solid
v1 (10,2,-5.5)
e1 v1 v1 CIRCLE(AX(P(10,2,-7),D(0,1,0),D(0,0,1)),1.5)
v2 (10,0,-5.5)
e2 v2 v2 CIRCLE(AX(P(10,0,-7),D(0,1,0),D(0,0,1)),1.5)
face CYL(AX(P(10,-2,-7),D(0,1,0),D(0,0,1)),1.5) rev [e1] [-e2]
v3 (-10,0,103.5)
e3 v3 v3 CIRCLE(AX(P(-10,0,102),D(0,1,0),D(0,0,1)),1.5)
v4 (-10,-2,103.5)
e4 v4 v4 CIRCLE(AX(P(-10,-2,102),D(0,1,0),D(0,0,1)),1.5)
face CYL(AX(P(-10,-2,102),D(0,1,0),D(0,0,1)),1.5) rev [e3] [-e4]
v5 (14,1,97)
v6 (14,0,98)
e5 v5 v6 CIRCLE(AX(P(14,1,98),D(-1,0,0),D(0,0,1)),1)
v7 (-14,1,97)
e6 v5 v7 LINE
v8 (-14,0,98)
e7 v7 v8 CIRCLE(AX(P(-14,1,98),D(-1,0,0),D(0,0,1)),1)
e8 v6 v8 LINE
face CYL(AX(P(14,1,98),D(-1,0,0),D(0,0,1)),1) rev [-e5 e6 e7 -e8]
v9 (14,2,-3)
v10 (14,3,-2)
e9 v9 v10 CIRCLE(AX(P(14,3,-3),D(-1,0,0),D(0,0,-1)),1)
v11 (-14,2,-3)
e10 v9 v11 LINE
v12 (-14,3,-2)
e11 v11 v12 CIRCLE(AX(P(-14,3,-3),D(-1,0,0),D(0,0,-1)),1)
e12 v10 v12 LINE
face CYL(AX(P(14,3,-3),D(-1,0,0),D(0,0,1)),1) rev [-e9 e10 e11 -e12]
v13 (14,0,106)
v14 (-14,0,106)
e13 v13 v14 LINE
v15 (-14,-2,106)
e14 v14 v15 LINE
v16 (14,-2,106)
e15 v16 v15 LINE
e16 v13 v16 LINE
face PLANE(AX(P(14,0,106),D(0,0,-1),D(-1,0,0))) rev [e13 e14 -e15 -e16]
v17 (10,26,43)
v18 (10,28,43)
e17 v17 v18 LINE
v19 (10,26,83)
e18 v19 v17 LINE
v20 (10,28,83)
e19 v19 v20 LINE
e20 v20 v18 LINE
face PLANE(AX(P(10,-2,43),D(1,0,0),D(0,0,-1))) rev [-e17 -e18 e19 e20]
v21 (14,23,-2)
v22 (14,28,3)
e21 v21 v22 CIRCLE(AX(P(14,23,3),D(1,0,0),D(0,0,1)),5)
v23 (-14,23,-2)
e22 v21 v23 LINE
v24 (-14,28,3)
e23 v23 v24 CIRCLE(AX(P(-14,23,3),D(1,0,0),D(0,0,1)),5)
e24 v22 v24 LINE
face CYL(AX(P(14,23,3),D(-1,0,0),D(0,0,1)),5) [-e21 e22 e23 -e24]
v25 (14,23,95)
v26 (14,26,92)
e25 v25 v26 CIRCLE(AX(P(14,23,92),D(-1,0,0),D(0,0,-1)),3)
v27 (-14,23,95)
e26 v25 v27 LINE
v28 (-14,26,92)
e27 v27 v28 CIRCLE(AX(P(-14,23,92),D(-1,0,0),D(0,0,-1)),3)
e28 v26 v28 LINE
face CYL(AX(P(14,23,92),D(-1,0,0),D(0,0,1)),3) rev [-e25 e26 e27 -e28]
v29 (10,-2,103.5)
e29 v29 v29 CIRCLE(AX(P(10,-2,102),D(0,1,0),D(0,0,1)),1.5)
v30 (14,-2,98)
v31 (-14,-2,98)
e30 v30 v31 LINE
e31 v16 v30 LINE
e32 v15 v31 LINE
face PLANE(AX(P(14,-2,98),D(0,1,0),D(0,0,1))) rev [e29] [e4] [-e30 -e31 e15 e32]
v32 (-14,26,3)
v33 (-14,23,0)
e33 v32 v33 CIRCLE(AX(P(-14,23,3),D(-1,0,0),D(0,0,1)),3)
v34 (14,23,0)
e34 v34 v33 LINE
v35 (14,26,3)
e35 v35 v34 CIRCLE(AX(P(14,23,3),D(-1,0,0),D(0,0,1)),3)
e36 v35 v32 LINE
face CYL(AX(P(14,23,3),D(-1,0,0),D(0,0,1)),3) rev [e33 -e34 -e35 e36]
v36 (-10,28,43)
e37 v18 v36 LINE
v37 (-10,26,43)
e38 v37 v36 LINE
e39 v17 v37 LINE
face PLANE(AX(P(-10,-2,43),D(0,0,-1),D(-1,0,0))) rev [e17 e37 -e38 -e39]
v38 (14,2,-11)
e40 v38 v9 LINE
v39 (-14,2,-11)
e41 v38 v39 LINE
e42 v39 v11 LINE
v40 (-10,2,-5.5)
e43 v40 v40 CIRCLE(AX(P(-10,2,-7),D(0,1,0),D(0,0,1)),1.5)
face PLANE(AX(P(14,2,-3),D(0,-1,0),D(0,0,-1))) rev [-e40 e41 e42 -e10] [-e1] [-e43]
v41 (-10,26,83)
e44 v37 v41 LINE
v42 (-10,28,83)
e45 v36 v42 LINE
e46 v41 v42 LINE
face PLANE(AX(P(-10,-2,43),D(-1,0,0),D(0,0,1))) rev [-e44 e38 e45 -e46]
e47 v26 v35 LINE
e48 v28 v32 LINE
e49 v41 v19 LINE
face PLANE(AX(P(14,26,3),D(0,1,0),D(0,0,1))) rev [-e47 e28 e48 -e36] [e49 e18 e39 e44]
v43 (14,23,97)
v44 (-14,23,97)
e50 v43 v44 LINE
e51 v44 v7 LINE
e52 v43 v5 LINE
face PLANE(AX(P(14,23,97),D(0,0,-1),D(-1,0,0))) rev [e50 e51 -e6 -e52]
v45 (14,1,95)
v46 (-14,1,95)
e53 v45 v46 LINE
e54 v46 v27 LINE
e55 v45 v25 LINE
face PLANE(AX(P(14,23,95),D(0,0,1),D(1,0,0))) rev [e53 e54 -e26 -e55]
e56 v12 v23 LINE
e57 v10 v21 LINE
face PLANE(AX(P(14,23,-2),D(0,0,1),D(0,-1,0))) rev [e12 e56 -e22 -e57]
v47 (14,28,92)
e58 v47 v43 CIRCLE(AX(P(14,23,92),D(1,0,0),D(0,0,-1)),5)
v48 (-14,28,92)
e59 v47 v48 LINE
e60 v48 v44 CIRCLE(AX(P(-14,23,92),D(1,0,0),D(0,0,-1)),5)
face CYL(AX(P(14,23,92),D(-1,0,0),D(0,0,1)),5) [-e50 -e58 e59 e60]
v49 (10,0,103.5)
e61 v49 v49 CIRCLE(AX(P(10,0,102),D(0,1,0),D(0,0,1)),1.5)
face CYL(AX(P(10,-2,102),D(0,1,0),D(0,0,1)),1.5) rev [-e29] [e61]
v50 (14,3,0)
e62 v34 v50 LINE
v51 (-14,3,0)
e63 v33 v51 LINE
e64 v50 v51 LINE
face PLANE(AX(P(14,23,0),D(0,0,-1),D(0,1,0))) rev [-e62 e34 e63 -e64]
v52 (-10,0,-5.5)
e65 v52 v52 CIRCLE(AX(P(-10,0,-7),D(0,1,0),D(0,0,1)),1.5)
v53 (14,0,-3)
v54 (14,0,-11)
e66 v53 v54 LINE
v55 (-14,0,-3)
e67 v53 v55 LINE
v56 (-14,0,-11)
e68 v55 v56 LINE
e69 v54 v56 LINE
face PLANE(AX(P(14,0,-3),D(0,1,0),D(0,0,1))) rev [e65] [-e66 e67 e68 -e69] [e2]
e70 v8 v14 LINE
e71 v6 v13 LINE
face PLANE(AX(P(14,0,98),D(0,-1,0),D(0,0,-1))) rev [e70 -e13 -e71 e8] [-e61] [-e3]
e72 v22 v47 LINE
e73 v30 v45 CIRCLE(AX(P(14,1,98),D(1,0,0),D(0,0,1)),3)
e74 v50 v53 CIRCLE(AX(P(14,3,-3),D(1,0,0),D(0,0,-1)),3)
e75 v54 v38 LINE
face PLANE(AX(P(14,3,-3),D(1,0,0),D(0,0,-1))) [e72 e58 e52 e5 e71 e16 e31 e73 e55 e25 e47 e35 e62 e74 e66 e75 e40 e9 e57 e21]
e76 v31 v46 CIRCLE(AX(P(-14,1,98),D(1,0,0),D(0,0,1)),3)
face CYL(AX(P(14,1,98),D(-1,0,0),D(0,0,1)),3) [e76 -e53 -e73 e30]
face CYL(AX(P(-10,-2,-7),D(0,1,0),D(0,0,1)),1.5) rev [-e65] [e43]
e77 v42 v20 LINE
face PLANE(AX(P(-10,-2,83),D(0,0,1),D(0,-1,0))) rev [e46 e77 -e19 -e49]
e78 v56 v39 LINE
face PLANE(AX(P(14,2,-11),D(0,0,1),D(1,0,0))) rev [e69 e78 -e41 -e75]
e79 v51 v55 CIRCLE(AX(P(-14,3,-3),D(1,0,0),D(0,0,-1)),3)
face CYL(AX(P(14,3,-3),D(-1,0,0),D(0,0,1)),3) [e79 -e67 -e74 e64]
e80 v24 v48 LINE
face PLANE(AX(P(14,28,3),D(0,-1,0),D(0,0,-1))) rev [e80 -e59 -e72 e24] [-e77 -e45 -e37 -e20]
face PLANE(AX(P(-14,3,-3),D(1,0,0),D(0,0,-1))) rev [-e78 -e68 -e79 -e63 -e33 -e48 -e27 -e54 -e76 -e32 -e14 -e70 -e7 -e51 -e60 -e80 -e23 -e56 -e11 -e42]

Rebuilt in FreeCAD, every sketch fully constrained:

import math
import FreeCAD as App
import Part
import Sketcher

V = App.Vector


def add_polygon(sketch, points):
    """Adds a closed chain of lines whose ends are joined by coincident constraints."""
    first, n = sketch.GeometryCount, len(points)
    for a, b in zip(points, points[1:] + points[:1]):
        sketch.addGeometry(Part.LineSegment(App.Vector(*a, 0), App.Vector(*b, 0)), False)
    for i in range(n):
        sketch.addConstraint(Sketcher.Constraint("Coincident", first + i, 2, first + (i + 1) % n, 1))

doc = App.newDocument("Part")
body = doc.addObject("PartDesign::Body", "Body")

sketch1 = body.newObject("Sketcher::SketchObject", "Sketch")
sketch1.AttachmentSupport = (doc.getObject("YZ_Plane"), [""])
sketch1.MapMode = "FlatFace"
sketch1.addGeometry([
    Part.LineSegment(V(0, -3, 0), V(0, -11, 0)),
    Part.LineSegment(V(0, -11, 0), V(2, -11, 0)),
    Part.LineSegment(V(2, -11, 0), V(2, -3, 0)),
    Part.ArcOfCircle(Part.Circle(V(3, -3, 0), V(0, 0, 1), 1), math.radians(90), math.radians(180)),
    Part.LineSegment(V(3, -2, 0), V(23, -2, 0)),
    Part.ArcOfCircle(Part.Circle(V(23, 3, 0), V(0, 0, 1), 5), math.radians(-90), math.radians(0)),
    Part.LineSegment(V(28, 3, 0), V(28, 92, 0)),
    Part.ArcOfCircle(Part.Circle(V(23, 92, 0), V(0, 0, 1), 5), math.radians(0), math.radians(90)),
    Part.LineSegment(V(23, 97, 0), V(1, 97, 0)),
    Part.ArcOfCircle(Part.Circle(V(1, 98, 0), V(0, 0, 1), 1), math.radians(-180), math.radians(-90)),
    Part.LineSegment(V(0, 98, 0), V(0, 106, 0)),
    Part.LineSegment(V(0, 106, 0), V(-2, 106, 0)),
    Part.LineSegment(V(-2, 106, 0), V(-2, 98, 0)),
    Part.ArcOfCircle(Part.Circle(V(1, 98, 0), V(0, 0, 1), 3), math.radians(180), math.radians(270)),
    Part.LineSegment(V(1, 95, 0), V(23, 95, 0)),
    Part.ArcOfCircle(Part.Circle(V(23, 92, 0), V(0, 0, 1), 3), math.radians(0), math.radians(90)),
    Part.LineSegment(V(26, 92, 0), V(26, 3, 0)),
    Part.ArcOfCircle(Part.Circle(V(23, 3, 0), V(0, 0, 1), 3), math.radians(-90), math.radians(0)),
    Part.LineSegment(V(23, 0, 0), V(3, 0, 0)),
    Part.ArcOfCircle(Part.Circle(V(3, -3, 0), V(0, 0, 1), 3), math.radians(90), math.radians(180)),
], False)
sketch1.addConstraint([
    Sketcher.Constraint("Coincident", 0, 2, 1, 1),
    Sketcher.Constraint("Coincident", 1, 2, 2, 1),
    Sketcher.Constraint("Tangent", 2, 2, 3, 2),
    Sketcher.Constraint("Tangent", 3, 1, 4, 1),
    Sketcher.Constraint("Tangent", 4, 2, 5, 1),
    Sketcher.Constraint("Tangent", 5, 2, 6, 1),
    Sketcher.Constraint("Tangent", 6, 2, 7, 1),
    Sketcher.Constraint("Tangent", 7, 2, 8, 1),
    Sketcher.Constraint("Tangent", 8, 2, 9, 2),
    Sketcher.Constraint("Tangent", 9, 1, 10, 1),
    Sketcher.Constraint("Coincident", 10, 2, 11, 1),
    Sketcher.Constraint("Coincident", 11, 2, 12, 1),
    Sketcher.Constraint("Tangent", 12, 2, 13, 1),
    Sketcher.Constraint("Tangent", 13, 2, 14, 1),
    Sketcher.Constraint("Tangent", 14, 2, 15, 2),
    Sketcher.Constraint("Tangent", 15, 1, 16, 1),
    Sketcher.Constraint("Tangent", 16, 2, 17, 2),
    Sketcher.Constraint("Tangent", 17, 1, 18, 1),
    Sketcher.Constraint("Tangent", 18, 2, 19, 1),
    Sketcher.Constraint("Tangent", 19, 2, 0, 1),
    Sketcher.Constraint("Vertical", 0),
    Sketcher.Constraint("Horizontal", 1),
    Sketcher.Constraint("Vertical", 2),
    Sketcher.Constraint("Horizontal", 4),
    Sketcher.Constraint("Vertical", 6),
    Sketcher.Constraint("Horizontal", 8),
    Sketcher.Constraint("Vertical", 10),
    Sketcher.Constraint("Horizontal", 11),
    Sketcher.Constraint("Vertical", 12),
    Sketcher.Constraint("Horizontal", 14),
    Sketcher.Constraint("Vertical", 16),
    Sketcher.Constraint("Horizontal", 18),
    Sketcher.Constraint("Coincident", 13, 3, 9, 3),
    Sketcher.Constraint("Coincident", 15, 3, 7, 3),
    Sketcher.Constraint("Coincident", 17, 3, 5, 3),
    Sketcher.Constraint("Coincident", 19, 3, 3, 3),
    Sketcher.Constraint("Equal", 5, 7),
    Sketcher.Constraint("Equal", 3, 9),
    Sketcher.Constraint("Equal", 13, 15),
    Sketcher.Constraint("PointOnObject", 0, 2, -2),
    Sketcher.Constraint("PointOnObject", 9, 1, -2),
    Sketcher.Constraint("PointOnObject", 17, 1, -1),
    Sketcher.Constraint("Equal", 2, 10),
    Sketcher.Constraint("Radius", 3, 1.0),
    Sketcher.Constraint("Radius", 5, 5.0),
    Sketcher.Constraint("DistanceX", 4, 1, 4, 2, 20.0),
    Sketcher.Constraint("DistanceY", 0, 2, 0, 1, 8.0),
    Sketcher.Constraint("DistanceY", 6, 1, 6, 2, 89.0),
])
pad1 = body.newObject("PartDesign::Pad", "Pad")
pad1.Profile = sketch1
pad1.Length = 28
pad1.Midplane = True

sketch2 = body.newObject("Sketcher::SketchObject", "Sketch001")
sketch2.AttachmentSupport = (doc.getObject("XZ_Plane"), [""])
sketch2.MapMode = "FlatFace"
sketch2.AttachmentOffset = App.Placement(V(0, 0, -28), App.Rotation())
add_polygon(sketch2, [(-10, 43), (-10, 83), (10, 83), (10, 43)])
sketch2.addConstraint([
    Sketcher.Constraint("Vertical", 0),
    Sketcher.Constraint("Horizontal", 1),
    Sketcher.Constraint("Vertical", 2),
    Sketcher.Constraint("Horizontal", 3),
    Sketcher.Constraint("DistanceX", 1, 1, 1, 2, 20.0),
    Sketcher.Constraint("DistanceY", 0, 1, 0, 2, 40.0),
    Sketcher.Constraint("DistanceX", 0, 2, -1, 1, 10.0),
    Sketcher.Constraint("DistanceY", -1, 1, 0, 2, 83.0),
])
pocket1 = body.newObject("PartDesign::Pocket", "Pocket")
pocket1.Profile = sketch2
pocket1.Type = "ThroughAll"
pocket1.Reversed = True

sketch3 = body.newObject("Sketcher::SketchObject", "Sketch002")
sketch3.AttachmentSupport = (doc.getObject("XZ_Plane"), [""])
sketch3.MapMode = "FlatFace"
sketch3.addGeometry([
    Part.Circle(V(10, 102, 0), V(0, 0, 1), 1.5),
    Part.Circle(V(-10, 102, 0), V(0, 0, 1), 1.5),
], False)
sketch3.addConstraint([
    Sketcher.Constraint("Equal", 0, 1),
    Sketcher.Constraint("Symmetric", 0, 3, 1, 3, -2),
    Sketcher.Constraint("Diameter", 0, 3.0),
    Sketcher.Constraint("DistanceX", -1, 1, 0, 3, 10.0),
    Sketcher.Constraint("DistanceY", -1, 1, 0, 3, 102.0),
])
pocket2 = body.newObject("PartDesign::Pocket", "Pocket001")
pocket2.Profile = sketch3
pocket2.Type = "ThroughAll"
pocket2.Reversed = True

sketch4 = body.newObject("Sketcher::SketchObject", "Sketch003")
sketch4.AttachmentSupport = (doc.getObject("XZ_Plane"), [""])
sketch4.MapMode = "FlatFace"
sketch4.AttachmentOffset = App.Placement(V(0, 0, -2), App.Rotation())
sketch4.addGeometry([
    Part.Circle(V(10, -7, 0), V(0, 0, 1), 1.5),
    Part.Circle(V(-10, -7, 0), V(0, 0, 1), 1.5),
], False)
sketch4.addConstraint([
    Sketcher.Constraint("Equal", 0, 1),
    Sketcher.Constraint("Symmetric", 0, 3, 1, 3, -2),
    Sketcher.Constraint("Diameter", 0, 3.0),
    Sketcher.Constraint("DistanceX", -1, 1, 0, 3, 10.0),
    Sketcher.Constraint("DistanceY", 0, 3, -1, 1, 7.0),
])
pocket3 = body.newObject("PartDesign::Pocket", "Pocket002")
pocket3.Profile = sketch4
pocket3.Type = "ThroughAll"
pocket3.Reversed = True

doc.recompute()
